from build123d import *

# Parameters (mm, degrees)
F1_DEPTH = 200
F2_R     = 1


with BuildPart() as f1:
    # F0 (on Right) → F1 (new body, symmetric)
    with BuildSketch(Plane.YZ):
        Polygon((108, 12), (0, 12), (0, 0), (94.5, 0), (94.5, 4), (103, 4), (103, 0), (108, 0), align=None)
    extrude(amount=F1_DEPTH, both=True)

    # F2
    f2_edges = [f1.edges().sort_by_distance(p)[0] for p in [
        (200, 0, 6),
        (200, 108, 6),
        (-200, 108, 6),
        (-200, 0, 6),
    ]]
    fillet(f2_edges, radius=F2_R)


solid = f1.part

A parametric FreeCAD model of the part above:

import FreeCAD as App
import Part
import Sketcher
from FreeCAD import Vector
Q = App.Units.Quantity


def edges_at(feature, points):
    """Names of the edges that pass closest to the given points."""
    edges = feature.Shape.Edges
    near = lambda p: min(range(len(edges)), key=lambda i: edges[i].distToShape(Part.Vertex(*p))[0])
    return sorted({f"Edge{near(p) + 1}" for p in points})


def add_polygon(sketch, points):
    """Adds a closed chain of lines whose ends are joined by coincident constraints."""
    first, n = sketch.GeometryCount, len(points)
    for a, b in zip(points, points[1:] + points[:1]):
        sketch.addGeometry(Part.LineSegment(App.Vector(*a, 0), App.Vector(*b, 0)), False)
    for i in range(n):
        sketch.addConstraint(Sketcher.Constraint("Coincident", first + i, 2, first + (i + 1) % n, 1))

doc = App.newDocument("Part")
body = doc.addObject("PartDesign::Body", "Body")

sketch1 = body.newObject("Sketcher::SketchObject", "Sketch")
sketch1.AttachmentSupport = (doc.getObject("YZ_Plane"), [""])
sketch1.MapMode = "FlatFace"
add_polygon(sketch1, [(108, 12), (0, 12), (0, 0), (94.5, 0), (94.5, 4), (103, 4), (103, 0), (108, 0)])
sketch1.addConstraint(Sketcher.Constraint("Horizontal", 0))
sketch1.addConstraint(Sketcher.Constraint("Vertical", 1))
sketch1.addConstraint(Sketcher.Constraint("Horizontal", 2))
sketch1.addConstraint(Sketcher.Constraint("Vertical", 3))
sketch1.addConstraint(Sketcher.Constraint("Horizontal", 4))
sketch1.addConstraint(Sketcher.Constraint("Vertical", 5))
sketch1.addConstraint(Sketcher.Constraint("Horizontal", 6))
sketch1.addConstraint(Sketcher.Constraint("Vertical", 7))
sketch1.addConstraint(Sketcher.Constraint("Coincident", 1, 2, -1, 1))
sketch1.addConstraint(Sketcher.Constraint("PointOnObject", 5, 2, -1))
sketch1.addConstraint(Sketcher.Constraint("DistanceX", 0, 2, 0, 1, Q("108 mm")))
sketch1.addConstraint(Sketcher.Constraint("DistanceX", 6, 1, 6, 2, Q("5 mm")))
sketch1.addConstraint(Sketcher.Constraint("DistanceY", 1, 2, 1, 1, Q("12 mm")))
sketch1.addConstraint(Sketcher.Constraint("DistanceY", 3, 1, 3, 2, Q("4 mm")))
sketch1.addConstraint(Sketcher.Constraint("DistanceX", 2, 1, 2, 2, Q("94.5 mm")))
pad1 = body.newObject("PartDesign::Pad", "Pad")
pad1.Profile = sketch1
pad1.Length = 400
pad1.Midplane = True
doc.recompute()

fillet = body.newObject("PartDesign::Fillet", "Fillet")
fillet.Base = (pad1, edges_at(pad1, [
    (200, 0, 6),
    (200, 108, 6),
    (-200, 108, 6),
    (-200, 0, 6),
]))
fillet.Radius = 1

doc.recompute()
